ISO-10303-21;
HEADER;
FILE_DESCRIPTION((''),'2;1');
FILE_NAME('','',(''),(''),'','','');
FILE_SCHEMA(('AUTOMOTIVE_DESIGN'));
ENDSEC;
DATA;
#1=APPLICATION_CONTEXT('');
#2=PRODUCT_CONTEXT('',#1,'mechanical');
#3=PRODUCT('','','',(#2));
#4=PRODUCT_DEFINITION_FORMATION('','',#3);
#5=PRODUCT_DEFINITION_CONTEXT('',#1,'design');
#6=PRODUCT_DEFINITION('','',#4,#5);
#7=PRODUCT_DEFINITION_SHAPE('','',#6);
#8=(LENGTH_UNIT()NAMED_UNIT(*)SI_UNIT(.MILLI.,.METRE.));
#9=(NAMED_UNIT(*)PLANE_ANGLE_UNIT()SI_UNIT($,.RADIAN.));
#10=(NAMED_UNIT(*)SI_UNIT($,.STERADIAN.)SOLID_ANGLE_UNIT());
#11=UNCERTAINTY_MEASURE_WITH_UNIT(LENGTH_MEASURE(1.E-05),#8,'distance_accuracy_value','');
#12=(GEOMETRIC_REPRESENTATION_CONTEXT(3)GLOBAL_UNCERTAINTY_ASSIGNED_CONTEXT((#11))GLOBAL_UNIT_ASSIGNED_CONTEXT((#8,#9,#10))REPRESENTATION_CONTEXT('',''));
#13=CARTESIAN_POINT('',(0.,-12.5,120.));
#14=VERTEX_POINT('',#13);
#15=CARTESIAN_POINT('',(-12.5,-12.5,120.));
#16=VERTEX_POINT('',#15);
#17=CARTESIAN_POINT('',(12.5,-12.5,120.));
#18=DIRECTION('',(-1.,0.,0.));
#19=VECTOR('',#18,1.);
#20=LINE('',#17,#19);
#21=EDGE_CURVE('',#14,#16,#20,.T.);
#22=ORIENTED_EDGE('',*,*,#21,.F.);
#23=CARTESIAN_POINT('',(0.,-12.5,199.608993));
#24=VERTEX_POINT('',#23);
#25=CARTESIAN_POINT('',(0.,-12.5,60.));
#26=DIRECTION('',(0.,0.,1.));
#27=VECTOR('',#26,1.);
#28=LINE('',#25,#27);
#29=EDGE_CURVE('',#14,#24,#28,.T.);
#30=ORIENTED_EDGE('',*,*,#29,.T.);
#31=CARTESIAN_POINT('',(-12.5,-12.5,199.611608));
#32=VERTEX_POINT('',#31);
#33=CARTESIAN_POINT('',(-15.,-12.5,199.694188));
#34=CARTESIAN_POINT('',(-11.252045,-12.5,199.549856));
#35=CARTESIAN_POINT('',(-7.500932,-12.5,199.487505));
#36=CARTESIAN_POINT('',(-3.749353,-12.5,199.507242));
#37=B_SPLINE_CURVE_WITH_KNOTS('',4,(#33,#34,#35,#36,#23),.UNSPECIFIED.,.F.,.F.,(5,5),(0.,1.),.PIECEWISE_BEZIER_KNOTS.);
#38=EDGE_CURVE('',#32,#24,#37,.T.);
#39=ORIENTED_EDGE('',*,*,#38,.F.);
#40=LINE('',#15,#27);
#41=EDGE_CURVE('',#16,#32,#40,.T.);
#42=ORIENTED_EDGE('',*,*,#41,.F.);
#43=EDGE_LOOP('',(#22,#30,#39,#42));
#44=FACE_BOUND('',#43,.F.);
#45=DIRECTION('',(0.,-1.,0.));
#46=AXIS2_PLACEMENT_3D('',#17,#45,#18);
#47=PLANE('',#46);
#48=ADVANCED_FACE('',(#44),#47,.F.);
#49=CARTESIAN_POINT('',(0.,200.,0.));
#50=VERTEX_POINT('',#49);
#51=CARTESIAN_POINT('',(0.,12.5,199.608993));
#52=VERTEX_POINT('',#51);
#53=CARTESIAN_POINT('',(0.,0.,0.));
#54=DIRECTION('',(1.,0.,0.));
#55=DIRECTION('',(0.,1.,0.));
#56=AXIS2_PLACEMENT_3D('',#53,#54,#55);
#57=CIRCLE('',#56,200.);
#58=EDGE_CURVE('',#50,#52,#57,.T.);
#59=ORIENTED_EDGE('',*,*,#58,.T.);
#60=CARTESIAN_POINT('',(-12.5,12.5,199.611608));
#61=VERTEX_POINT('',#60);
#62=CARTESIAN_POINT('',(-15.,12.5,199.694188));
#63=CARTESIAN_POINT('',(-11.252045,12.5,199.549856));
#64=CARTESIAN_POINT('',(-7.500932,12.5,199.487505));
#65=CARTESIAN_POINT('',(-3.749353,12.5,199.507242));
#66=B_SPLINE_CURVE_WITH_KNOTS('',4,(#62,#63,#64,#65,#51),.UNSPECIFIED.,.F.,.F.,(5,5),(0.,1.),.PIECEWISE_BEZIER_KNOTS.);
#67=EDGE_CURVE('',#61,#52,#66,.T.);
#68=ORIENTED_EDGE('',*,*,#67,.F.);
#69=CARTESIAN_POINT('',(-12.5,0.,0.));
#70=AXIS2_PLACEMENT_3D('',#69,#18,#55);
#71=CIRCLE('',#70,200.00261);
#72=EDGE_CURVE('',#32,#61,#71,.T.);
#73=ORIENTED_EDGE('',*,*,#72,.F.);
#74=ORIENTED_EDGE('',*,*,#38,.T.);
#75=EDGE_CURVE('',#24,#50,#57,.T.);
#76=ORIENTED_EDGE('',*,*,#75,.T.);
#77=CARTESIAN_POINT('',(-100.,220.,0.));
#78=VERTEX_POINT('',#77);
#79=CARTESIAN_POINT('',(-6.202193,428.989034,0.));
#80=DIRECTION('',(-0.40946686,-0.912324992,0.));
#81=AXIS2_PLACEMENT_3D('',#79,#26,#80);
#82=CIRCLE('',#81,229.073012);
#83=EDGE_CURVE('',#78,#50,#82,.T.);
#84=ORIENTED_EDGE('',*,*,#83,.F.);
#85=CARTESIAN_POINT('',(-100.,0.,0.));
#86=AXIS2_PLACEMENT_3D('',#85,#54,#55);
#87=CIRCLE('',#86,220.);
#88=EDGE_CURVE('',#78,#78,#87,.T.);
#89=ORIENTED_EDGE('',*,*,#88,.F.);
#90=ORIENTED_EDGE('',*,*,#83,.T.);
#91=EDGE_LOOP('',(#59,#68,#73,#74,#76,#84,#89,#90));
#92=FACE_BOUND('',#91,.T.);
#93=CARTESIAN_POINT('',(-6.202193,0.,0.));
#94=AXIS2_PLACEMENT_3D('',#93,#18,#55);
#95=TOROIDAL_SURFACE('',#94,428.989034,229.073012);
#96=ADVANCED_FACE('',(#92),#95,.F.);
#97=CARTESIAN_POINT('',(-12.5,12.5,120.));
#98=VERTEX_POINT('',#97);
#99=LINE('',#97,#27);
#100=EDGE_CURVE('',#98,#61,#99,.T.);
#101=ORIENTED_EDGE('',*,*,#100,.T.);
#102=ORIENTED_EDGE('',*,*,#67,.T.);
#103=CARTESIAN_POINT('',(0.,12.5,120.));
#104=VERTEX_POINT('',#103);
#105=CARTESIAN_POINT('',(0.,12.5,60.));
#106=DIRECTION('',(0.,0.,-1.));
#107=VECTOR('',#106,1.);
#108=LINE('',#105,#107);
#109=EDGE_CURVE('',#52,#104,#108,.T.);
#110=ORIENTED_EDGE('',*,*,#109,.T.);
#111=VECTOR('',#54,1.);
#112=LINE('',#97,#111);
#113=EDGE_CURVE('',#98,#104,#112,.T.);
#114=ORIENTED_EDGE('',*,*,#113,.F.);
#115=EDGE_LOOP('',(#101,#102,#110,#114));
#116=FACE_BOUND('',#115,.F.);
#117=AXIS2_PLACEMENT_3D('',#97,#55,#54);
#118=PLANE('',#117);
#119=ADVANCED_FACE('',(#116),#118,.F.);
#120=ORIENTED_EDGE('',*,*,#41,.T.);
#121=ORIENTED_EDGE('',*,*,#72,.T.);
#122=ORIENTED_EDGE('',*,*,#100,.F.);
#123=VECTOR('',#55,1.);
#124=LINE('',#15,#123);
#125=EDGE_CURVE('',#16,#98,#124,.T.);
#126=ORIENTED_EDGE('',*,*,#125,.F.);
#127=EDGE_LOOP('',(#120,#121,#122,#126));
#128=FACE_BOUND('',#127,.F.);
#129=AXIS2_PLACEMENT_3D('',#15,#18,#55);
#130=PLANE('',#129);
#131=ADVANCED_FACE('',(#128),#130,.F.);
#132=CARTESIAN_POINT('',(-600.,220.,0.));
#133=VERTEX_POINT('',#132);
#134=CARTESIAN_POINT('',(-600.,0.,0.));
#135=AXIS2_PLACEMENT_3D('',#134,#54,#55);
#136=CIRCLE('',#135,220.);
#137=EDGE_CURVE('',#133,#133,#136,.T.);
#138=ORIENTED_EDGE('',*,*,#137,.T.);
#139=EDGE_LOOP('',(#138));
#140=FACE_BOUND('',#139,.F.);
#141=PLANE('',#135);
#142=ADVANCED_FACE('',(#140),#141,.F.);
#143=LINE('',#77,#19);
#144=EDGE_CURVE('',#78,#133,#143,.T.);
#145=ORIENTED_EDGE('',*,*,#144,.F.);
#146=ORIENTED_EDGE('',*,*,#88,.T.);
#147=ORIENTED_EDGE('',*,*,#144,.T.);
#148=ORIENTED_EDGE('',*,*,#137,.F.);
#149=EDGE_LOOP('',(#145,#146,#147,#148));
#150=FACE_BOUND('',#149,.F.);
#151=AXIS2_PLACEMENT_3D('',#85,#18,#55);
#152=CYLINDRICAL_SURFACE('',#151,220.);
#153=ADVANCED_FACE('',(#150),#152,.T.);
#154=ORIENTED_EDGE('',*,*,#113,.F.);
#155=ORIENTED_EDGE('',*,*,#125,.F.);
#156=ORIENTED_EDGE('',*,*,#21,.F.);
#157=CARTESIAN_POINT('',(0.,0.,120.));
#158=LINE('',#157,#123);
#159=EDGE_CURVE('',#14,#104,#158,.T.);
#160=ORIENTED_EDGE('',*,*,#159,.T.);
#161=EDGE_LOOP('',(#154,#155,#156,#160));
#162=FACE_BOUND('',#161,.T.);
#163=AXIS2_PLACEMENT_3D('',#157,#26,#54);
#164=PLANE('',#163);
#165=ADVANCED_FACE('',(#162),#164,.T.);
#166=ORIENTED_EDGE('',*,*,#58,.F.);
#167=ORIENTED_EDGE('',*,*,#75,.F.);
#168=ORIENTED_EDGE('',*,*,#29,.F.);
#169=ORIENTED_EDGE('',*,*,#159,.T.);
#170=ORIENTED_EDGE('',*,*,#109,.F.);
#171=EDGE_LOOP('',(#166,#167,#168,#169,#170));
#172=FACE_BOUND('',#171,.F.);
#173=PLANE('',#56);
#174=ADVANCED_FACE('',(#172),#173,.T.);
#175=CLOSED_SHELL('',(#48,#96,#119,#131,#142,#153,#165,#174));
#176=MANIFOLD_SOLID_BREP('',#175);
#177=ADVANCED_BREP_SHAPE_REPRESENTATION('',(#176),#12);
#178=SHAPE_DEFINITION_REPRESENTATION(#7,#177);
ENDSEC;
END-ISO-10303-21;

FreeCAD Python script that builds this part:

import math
import FreeCAD as App
import Part
import Sketcher


def add_polygon(sketch, points):
    """Adds a closed chain of lines whose ends are joined by coincident constraints."""
    first, n = sketch.GeometryCount, len(points)
    for a, b in zip(points, points[1:] + points[:1]):
        sketch.addGeometry(Part.LineSegment(App.Vector(*a, 0), App.Vector(*b, 0)), False)
    for i in range(n):
        sketch.addConstraint(Sketcher.Constraint("Coincident", first + i, 2, first + (i + 1) % n, 1))

doc = App.newDocument("Part")
body = doc.addObject("PartDesign::Body", "Body")

sketch1 = doc.addObject("Sketcher::SketchObject", "Sketch")
body.addObject(sketch1)
sketch1.AttachmentSupport = (doc.XY_Plane, [""])
sketch1.MapMode = "FlatFace"
sketch1.addGeometry([
    Part.LineSegment(App.Vector(-600, 0, 0), App.Vector(0, 0, 0)),
    Part.LineSegment(App.Vector(0, 0, 0), App.Vector(0, 200, 0)),
    Part.ArcOfCircle(Part.Circle(App.Vector(-6, 429, 0), App.Vector(0, 0, 1), 229), math.radians(-114), math.radians(-88)),
    Part.LineSegment(App.Vector(-100, 220, 0), App.Vector(-600, 220, 0)),
    Part.LineSegment(App.Vector(-600, 220, 0), App.Vector(-600, 0, 0)),
], False)
sketch1.addConstraint([
    Sketcher.Constraint("Coincident", 0, 2, 1, 1),
    Sketcher.Constraint("Coincident", 1, 2, 2, 2),
    Sketcher.Constraint("Coincident", 2, 1, 3, 1),
    Sketcher.Constraint("Coincident", 3, 2, 4, 1),
    Sketcher.Constraint("Coincident", 4, 2, 0, 1),
    Sketcher.Constraint("Horizontal", 0),
    Sketcher.Constraint("Vertical", 1),
    Sketcher.Constraint("Horizontal", 3),
    Sketcher.Constraint("Vertical", 4),
    Sketcher.Constraint("Coincident", 0, 2, -1, 1),
    Sketcher.Constraint("DistanceX", 3, 2, 3, 1, 500.0),
    Sketcher.Constraint("DistanceY", 1, 1, 1, 2, 200.0),
    Sketcher.Constraint("DistanceX", 0, 1, 0, 2, 600.0),
    Sketcher.Constraint("DistanceY", 4, 2, 4, 1, 220.0),
    Sketcher.Constraint("Radius", 2, 229.0727),
])
revolution = doc.addObject("PartDesign::Revolution", "Revolution")
body.addObject(revolution)
revolution.Profile = sketch1
revolution.ReferenceAxis = (sketch1, ["H_Axis"])
revolution.Angle = 360

sketch2 = doc.addObject("Sketcher::SketchObject", "Sketch001")
body.addObject(sketch2)
sketch2.AttachmentSupport = (doc.XY_Plane, [""])
sketch2.MapMode = "FlatFace"
sketch2.AttachmentOffset = App.Placement(App.Vector(0, 0, 120), App.Rotation())
add_polygon(sketch2, [(-12, -12), (12, -12), (12, 12), (-12, 12)])
sketch2.addConstraint([
    Sketcher.Constraint("Horizontal", 0),
    Sketcher.Constraint("Vertical", 1),
    Sketcher.Constraint("Horizontal", 2),
    Sketcher.Constraint("Vertical", 3),
    Sketcher.Constraint("Symmetric", 0, 2, 2, 2, -1, 1),
    Sketcher.Constraint("Equal", 2, 1),
    Sketcher.Constraint("DistanceX", 0, 1, 0, 2, 25.0),
])
pocket1 = doc.addObject("PartDesign::Pocket", "Pocket")
body.addObject(pocket1)
pocket1.Profile = sketch2
pocket1.Length = 200
pocket1.Reversed = True

doc.recompute()
